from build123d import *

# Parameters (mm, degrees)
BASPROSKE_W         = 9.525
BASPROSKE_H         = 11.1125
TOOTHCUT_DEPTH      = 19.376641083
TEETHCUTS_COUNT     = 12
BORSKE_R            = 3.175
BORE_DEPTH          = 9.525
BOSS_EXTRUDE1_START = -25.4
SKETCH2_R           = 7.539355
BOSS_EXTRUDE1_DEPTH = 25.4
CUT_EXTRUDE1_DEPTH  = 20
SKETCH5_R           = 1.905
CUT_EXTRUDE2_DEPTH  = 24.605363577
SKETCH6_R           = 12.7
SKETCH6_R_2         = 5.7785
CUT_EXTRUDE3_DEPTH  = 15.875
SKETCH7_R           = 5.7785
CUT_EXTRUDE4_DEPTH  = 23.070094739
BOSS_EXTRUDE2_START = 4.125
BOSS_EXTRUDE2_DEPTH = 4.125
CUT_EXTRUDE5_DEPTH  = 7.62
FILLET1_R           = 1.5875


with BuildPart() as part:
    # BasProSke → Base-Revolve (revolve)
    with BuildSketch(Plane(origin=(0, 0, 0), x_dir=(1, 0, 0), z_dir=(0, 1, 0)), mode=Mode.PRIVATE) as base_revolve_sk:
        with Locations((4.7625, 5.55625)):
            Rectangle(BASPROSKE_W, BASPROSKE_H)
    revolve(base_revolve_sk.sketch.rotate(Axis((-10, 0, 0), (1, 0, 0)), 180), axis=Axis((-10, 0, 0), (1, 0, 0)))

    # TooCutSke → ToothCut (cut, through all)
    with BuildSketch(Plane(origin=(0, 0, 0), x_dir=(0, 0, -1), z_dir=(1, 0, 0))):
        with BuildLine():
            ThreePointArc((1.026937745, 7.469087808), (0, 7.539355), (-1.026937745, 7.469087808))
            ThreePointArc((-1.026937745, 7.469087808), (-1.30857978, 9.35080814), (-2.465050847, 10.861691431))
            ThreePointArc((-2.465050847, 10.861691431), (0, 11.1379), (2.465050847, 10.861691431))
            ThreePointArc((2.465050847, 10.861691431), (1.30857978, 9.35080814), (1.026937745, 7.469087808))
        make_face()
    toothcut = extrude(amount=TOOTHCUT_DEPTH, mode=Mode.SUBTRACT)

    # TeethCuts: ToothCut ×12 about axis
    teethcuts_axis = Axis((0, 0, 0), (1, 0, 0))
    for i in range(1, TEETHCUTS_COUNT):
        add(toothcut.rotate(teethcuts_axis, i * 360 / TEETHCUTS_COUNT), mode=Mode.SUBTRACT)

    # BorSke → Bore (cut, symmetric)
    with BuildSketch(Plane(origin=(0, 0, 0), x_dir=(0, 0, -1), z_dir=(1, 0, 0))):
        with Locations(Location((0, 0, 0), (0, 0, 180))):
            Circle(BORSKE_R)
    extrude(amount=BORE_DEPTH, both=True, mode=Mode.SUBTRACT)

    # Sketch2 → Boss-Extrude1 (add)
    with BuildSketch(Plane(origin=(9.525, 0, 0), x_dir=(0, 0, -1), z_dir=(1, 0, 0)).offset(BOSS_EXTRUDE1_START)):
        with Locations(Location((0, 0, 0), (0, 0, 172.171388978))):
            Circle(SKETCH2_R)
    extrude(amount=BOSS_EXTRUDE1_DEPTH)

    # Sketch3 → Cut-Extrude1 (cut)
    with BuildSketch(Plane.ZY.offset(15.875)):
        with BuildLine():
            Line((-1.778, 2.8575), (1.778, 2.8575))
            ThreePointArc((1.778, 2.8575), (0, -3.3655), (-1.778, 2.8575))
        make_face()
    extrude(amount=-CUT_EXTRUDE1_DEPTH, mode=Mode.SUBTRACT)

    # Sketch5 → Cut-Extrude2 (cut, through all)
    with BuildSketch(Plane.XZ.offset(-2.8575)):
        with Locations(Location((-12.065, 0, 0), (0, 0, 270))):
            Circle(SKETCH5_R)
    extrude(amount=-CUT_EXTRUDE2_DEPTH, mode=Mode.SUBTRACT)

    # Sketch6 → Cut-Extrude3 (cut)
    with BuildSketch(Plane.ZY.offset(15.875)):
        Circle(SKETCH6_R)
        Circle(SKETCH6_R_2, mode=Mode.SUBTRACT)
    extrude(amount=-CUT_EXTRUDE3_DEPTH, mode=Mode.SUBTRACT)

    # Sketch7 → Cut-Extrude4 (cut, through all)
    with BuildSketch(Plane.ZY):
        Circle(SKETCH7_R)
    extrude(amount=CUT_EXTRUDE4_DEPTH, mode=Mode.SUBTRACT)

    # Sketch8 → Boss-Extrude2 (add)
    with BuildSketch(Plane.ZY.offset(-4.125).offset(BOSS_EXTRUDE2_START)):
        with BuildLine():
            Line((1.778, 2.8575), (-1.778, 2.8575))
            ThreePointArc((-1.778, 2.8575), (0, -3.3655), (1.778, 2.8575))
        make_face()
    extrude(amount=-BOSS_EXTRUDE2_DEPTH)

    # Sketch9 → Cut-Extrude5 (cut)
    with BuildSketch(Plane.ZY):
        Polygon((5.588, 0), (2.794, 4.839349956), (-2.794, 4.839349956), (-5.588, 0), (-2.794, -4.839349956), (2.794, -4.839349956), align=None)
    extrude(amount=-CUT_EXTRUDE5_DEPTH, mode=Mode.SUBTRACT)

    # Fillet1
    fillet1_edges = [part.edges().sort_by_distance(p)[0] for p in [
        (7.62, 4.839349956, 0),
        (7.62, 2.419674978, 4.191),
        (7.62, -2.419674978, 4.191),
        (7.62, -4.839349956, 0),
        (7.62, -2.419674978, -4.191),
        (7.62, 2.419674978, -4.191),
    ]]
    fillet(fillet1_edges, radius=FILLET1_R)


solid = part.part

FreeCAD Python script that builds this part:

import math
import FreeCAD as App
import Part
import Sketcher
Q = App.Units.Quantity


def edges_at(feature, points):
    """Names of the edges that pass closest to the given points."""
    edges = feature.Shape.Edges
    near = lambda p: min(range(len(edges)), key=lambda i: edges[i].distToShape(Part.Vertex(*p))[0])
    return sorted({f"Edge{near(p) + 1}" for p in points})

doc = App.newDocument("Part")
body = doc.addObject("PartDesign::Body", "Body")

# Sketch on XZ plane
sketch1 = body.newObject("Sketcher::SketchObject", "Sketch")
sketch1.AttachmentSupport = (doc.getObject("XZ_Plane"), [""])
sketch1.MapMode = "FlatFace"
sketch1.addGeometry([
    Part.LineSegment(App.Vector(0, -11, 0), App.Vector(0, 0, 0)),
    Part.LineSegment(App.Vector(0, 0, 0), App.Vector(10, 0, 0)),
    Part.LineSegment(App.Vector(10, 0, 0), App.Vector(10, -11, 0)),
    Part.LineSegment(App.Vector(10, -11, 0), App.Vector(0, -11, 0)),
], False)
sketch1.addConstraint([
    Sketcher.Constraint("Coincident", 0, 2, 1, 1),
    Sketcher.Constraint("Coincident", 1, 2, 2, 1),
    Sketcher.Constraint("Coincident", 2, 2, 3, 1),
    Sketcher.Constraint("Coincident", 3, 2, 0, 1),
    Sketcher.Constraint("Vertical", 0),
    Sketcher.Constraint("Horizontal", 1),
    Sketcher.Constraint("Vertical", 2),
    Sketcher.Constraint("Horizontal", 3),
    Sketcher.Constraint("Coincident", 0, 2, -1, 1),
    Sketcher.Constraint("DistanceX", 1, 1, 1, 2, Q("0.375 in")),
    Sketcher.Constraint("DistanceY", 0, 1, 0, 2, Q("0.4375 in")),
])
revolution = body.newObject("PartDesign::Revolution", "Revolution")
revolution.Profile = sketch1
revolution.ReferenceAxis = (sketch1, ["H_Axis"])
revolution.Angle = 360

# Sketch on YZ plane
sketch2 = body.newObject("Sketcher::SketchObject", "Sketch001")
sketch2.AttachmentSupport = (doc.getObject("YZ_Plane"), [""])
sketch2.MapMode = "FlatFace"
sketch2.addGeometry([
    Part.ArcOfCircle(Part.Circle(App.Vector(0, 0, 0), App.Vector(0, 0, 1), 7.5), math.radians(-7.83), math.radians(7.83)),
    Part.ArcOfCircle(Part.Circle(App.Vector(7.9, -4.8, 0), App.Vector(0, 0, 1), 3.8), math.radians(38), math.radians(96)),
    Part.ArcOfCircle(Part.Circle(App.Vector(0, 0, 0), App.Vector(0, 0, 1), 11.1), math.radians(-13), math.radians(13)),
    Part.ArcOfCircle(Part.Circle(App.Vector(7.9, 4.8, 0), App.Vector(0, 0, 1), 3.8), math.radians(-96), math.radians(-38)),
], False)
sketch2.addConstraint([
    Sketcher.Constraint("Coincident", 0, 1, 1, 2),
    Sketcher.Constraint("Coincident", 1, 1, 2, 1),
    Sketcher.Constraint("Coincident", 2, 2, 3, 2),
    Sketcher.Constraint("Coincident", 3, 1, 0, 2),
    Sketcher.Constraint("Coincident", 0, 3, -1, 1),
    Sketcher.Constraint("Coincident", 2, 3, -1, 1),
    Sketcher.Constraint("Equal", 1, 3),
    Sketcher.Constraint("Symmetric", 1, 3, 3, 3, -1),
    Sketcher.Constraint("Radius", 1, Q("0.15 in")),
    Sketcher.Constraint("Radius", 2, Q("0.4385 in")),
    Sketcher.Constraint("DistanceX", -1, 1, 1, 3, Q("0.3096001 in")),
    Sketcher.Constraint("Radius", 0, 7.539355),
    Sketcher.Constraint("DistanceY", 1, 1, 2, 2, 4.930102),
])
pocket1 = body.newObject("PartDesign::Pocket", "Pocket")
pocket1.Profile = sketch2
pocket1.Type = "ThroughAll"
pocket1.Reversed = True
doc.recompute()

polarpattern = body.newObject("PartDesign::PolarPattern", "PolarPattern")
polarpattern.Originals = [pocket1]
polarpattern.Axis = (doc.getObject("X_Axis"), [""])
polarpattern.Angle = 360
polarpattern.Occurrences = 12
body.Tip = polarpattern

# Sketch on YZ plane
sketch3 = body.newObject("Sketcher::SketchObject", "Sketch002")
sketch3.AttachmentSupport = (doc.getObject("YZ_Plane"), [""])
sketch3.MapMode = "FlatFace"
sketch3.addGeometry(Part.Circle(App.Vector(0, 0, 0), App.Vector(0, 0, 1), 3.2), False)
sketch3.addConstraint([
    Sketcher.Constraint("Coincident", 0, 3, -1, 1),
    Sketcher.Constraint("Diameter", 0, Q("0.25 in")),
])
pocket2 = body.newObject("PartDesign::Pocket", "Pocket001")
pocket2.Profile = sketch3
pocket2.Length = Q("0.75 in")
pocket2.Midplane = True

# Sketch on YZ plane
sketch4 = body.newObject("Sketcher::SketchObject", "Sketch003")
sketch4.AttachmentSupport = (doc.getObject("YZ_Plane"), [""])
sketch4.MapMode = "FlatFace"
sketch4.AttachmentOffset = App.Placement(App.Vector(0, 0, -0.625 * 25.4), App.Rotation())
sketch4.addGeometry(Part.Circle(App.Vector(0, 0, 0), App.Vector(0, 0, 1), 8), False)
sketch4.addConstraint([
    Sketcher.Constraint("Coincident", 0, 3, -1, 1),
    Sketcher.Constraint("Diameter", 0, 15.07871),
])
pad1 = body.newObject("PartDesign::Pad", "Pad")
pad1.Profile = sketch4
pad1.Length = Q("1 in")

# Sketch on YZ plane
sketch5 = body.newObject("Sketcher::SketchObject", "Sketch004")
sketch5.AttachmentSupport = (doc.getObject("YZ_Plane"), [""])
sketch5.MapMode = "FlatFace"
sketch5.AttachmentOffset = App.Placement(App.Vector(0, 0, -0.625 * 25.4), App.Rotation())
sketch5.addGeometry([
    Part.LineSegment(App.Vector(2.9, 1.8, 0), App.Vector(2.9, -1.8, 0)),
    Part.ArcOfCircle(Part.Circle(App.Vector(0, 0, 0), App.Vector(0, 0, 1), 3.4), math.radians(32), math.radians(328)),
], False)
sketch5.addConstraint([
    Sketcher.Constraint("Coincident", 0, 1, 1, 1),
    Sketcher.Constraint("Coincident", 1, 2, 0, 2),
    Sketcher.Constraint("Vertical", 0),
    Sketcher.Constraint("Coincident", 1, 3, -1, 1),
    Sketcher.Constraint("DistanceY", 0, 2, 0, 1, Q("0.14 in")),
    Sketcher.Constraint("Radius", 1, Q("0.1325 in")),
])
pocket3 = body.newObject("PartDesign::Pocket", "Pocket002")
pocket3.Profile = sketch5
pocket3.Length = 20
pocket3.Reversed = True

# Sketch on XZ plane
sketch6 = body.newObject("Sketcher::SketchObject", "Sketch005")
sketch6.AttachmentSupport = (doc.getObject("XZ_Plane"), [""])
sketch6.MapMode = "FlatFace"
sketch6.AttachmentOffset = App.Placement(App.Vector(0, 0, -0.1125 * 25.4), App.Rotation())
sketch6.addGeometry(Part.Circle(App.Vector(-12.1, 0, 0), App.Vector(0, 0, 1), 1.9), False)
sketch6.addConstraint([
    Sketcher.Constraint("PointOnObject", 0, 3, -1),
    Sketcher.Constraint("Diameter", 0, Q("0.15 in")),
    Sketcher.Constraint("DistanceX", 0, 3, -1, 1, Q("0.475 in")),
])
pocket4 = body.newObject("PartDesign::Pocket", "Pocket003")
pocket4.Profile = sketch6
pocket4.Type = "ThroughAll"

# Sketch on YZ plane
sketch7 = body.newObject("Sketcher::SketchObject", "Sketch006")
sketch7.AttachmentSupport = (doc.getObject("YZ_Plane"), [""])
sketch7.MapMode = "FlatFace"
sketch7.AttachmentOffset = App.Placement(App.Vector(0, 0, -0.625 * 25.4), App.Rotation())
sketch7.addGeometry([
    Part.Circle(App.Vector(0, 0, 0), App.Vector(0, 0, 1), 13),
    Part.Circle(App.Vector(0, 0, 0), App.Vector(0, 0, 1), 6),
], False)
sketch7.addConstraint([
    Sketcher.Constraint("Coincident", 0, 3, -1, 1),
    Sketcher.Constraint("Coincident", 1, 3, -1, 1),
    Sketcher.Constraint("Diameter", 0, Q("1 in")),
    Sketcher.Constraint("Diameter", 1, Q("0.455 in")),
])
pocket5 = body.newObject("PartDesign::Pocket", "Pocket004")
pocket5.Profile = sketch7
pocket5.Length = Q("0.625 in")
pocket5.Reversed = True

# Sketch on YZ plane
sketch8 = body.newObject("Sketcher::SketchObject", "Sketch007")
sketch8.AttachmentSupport = (doc.getObject("YZ_Plane"), [""])
sketch8.MapMode = "FlatFace"
sketch8.addGeometry(Part.Circle(App.Vector(0, 0, 0), App.Vector(0, 0, 1), 6), False)
sketch8.addConstraint([
    Sketcher.Constraint("Coincident", 0, 3, -1, 1),
    Sketcher.Constraint("Diameter", 0, Q("0.455 in")),
])
pocket6 = body.newObject("PartDesign::Pocket", "Pocket005")
pocket6.Profile = sketch8
pocket6.Type = "ThroughAll"

# Sketch on YZ plane
sketch9 = body.newObject("Sketcher::SketchObject", "Sketch008")
sketch9.AttachmentSupport = (doc.getObject("YZ_Plane"), [""])
sketch9.MapMode = "FlatFace"
sketch9.addGeometry([
    Part.LineSegment(App.Vector(2.9, 1.8, 0), App.Vector(2.9, -1.8, 0)),
    Part.ArcOfCircle(Part.Circle(App.Vector(0, 0, 0), App.Vector(0, 0, 1), 3.4), math.radians(32), math.radians(328)),
], False)
sketch9.addConstraint([
    Sketcher.Constraint("Coincident", 0, 1, 1, 1),
    Sketcher.Constraint("Coincident", 1, 2, 0, 2),
    Sketcher.Constraint("Vertical", 0),
    Sketcher.Constraint("Coincident", 1, 3, -1, 1),
    Sketcher.Constraint("DistanceY", 0, 2, 0, 1, Q("0.14 in")),
    Sketcher.Constraint("Radius", 1, Q("0.1325 in")),
])
pad2 = body.newObject("PartDesign::Pad", "Pad001")
pad2.Profile = sketch9
pad2.Length = 4.125

# Sketch on YZ plane
sketch10 = body.newObject("Sketcher::SketchObject", "Sketch009")
sketch10.AttachmentSupport = (doc.getObject("YZ_Plane"), [""])
sketch10.MapMode = "FlatFace"
sketch10.addGeometry([
    Part.LineSegment(App.Vector(0, 6, 0), App.Vector(5, 3, 0)),  # 0
    Part.LineSegment(App.Vector(5, 3, 0), App.Vector(5, -3, 0)),  # 1
    Part.LineSegment(App.Vector(5, -3, 0), App.Vector(0, -6, 0)),  # 2
    Part.LineSegment(App.Vector(0, -6, 0), App.Vector(-5, -3, 0)),  # 3
    Part.LineSegment(App.Vector(-5, -3, 0), App.Vector(-5, 3, 0)),  # 4
    Part.LineSegment(App.Vector(-5, 3, 0), App.Vector(0, 6, 0)),  # 5
], False)
sketch10.addConstraint([
    Sketcher.Constraint("Coincident", 0, 2, 1, 1),
    Sketcher.Constraint("Coincident", 1, 2, 2, 1),
    Sketcher.Constraint("Coincident", 2, 2, 3, 1),
    Sketcher.Constraint("Coincident", 3, 2, 4, 1),
    Sketcher.Constraint("Coincident", 4, 2, 5, 1),
    Sketcher.Constraint("Coincident", 5, 2, 0, 1),
    Sketcher.Constraint("Vertical", 1),
    Sketcher.Constraint("Vertical", 4),
    Sketcher.Constraint("Symmetric", 0, 2, 3, 2, -1, 1),
    Sketcher.Constraint("Symmetric", 2, 2, 5, 2, -1, 1),
    Sketcher.Constraint("PointOnObject", 2, 2, -2),
    Sketcher.Constraint("Parallel", 2, 5),
    Sketcher.Constraint("Horizontal", 1, 2, 3, 2),
    Sketcher.Constraint("Angle", 0, Q("-30 deg")),
    Sketcher.Constraint("DistanceY", 1, 2, 1, 1, Q("0.22 in")),
    Sketcher.Constraint("Distance", 0, Q("0.22 in")),
])
pocket7 = body.newObject("PartDesign::Pocket", "Pocket006")
pocket7.Profile = sketch10
pocket7.Length = Q("0.3 in")
pocket7.Reversed = True
doc.recompute()

fillet = body.newObject("PartDesign::Fillet", "Fillet")
fillet.Base = (pocket7, edges_at(pocket7, [
    (7.62, 4.839, 0),
    (7.62, 2.42, 4.191),
    (7.62, -2.42, 4.191),
    (7.62, -4.839, 0),
    (7.62, -2.42, -4.191),
    (7.62, 2.42, -4.191),
]))
fillet.Radius = Q("0.0625 in")

doc.recompute()
